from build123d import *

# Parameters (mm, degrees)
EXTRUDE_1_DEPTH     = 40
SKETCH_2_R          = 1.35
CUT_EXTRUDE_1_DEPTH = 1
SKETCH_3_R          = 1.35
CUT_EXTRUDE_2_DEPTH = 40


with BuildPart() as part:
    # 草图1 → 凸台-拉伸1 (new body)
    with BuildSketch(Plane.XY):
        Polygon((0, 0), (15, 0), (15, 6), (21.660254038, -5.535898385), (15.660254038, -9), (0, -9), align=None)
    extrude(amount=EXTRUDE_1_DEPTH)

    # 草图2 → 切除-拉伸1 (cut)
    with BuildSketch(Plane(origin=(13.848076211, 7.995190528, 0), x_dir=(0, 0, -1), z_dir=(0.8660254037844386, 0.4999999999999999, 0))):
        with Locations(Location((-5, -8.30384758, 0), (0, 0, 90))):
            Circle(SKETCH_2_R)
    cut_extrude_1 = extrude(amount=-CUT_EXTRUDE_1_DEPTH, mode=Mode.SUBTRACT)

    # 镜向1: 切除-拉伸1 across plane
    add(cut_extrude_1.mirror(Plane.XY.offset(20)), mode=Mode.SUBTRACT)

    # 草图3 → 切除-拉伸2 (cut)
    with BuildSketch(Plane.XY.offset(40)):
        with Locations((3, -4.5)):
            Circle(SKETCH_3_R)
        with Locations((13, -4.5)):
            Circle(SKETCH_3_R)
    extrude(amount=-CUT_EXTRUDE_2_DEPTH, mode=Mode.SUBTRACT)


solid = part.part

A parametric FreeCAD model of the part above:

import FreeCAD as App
import Part
import Sketcher
from FreeCAD import Vector
Q = App.Units.Quantity


def add_polygon(sketch, points):
    """Adds a closed chain of lines whose ends are joined by coincident constraints."""
    first, n = sketch.GeometryCount, len(points)
    for a, b in zip(points, points[1:] + points[:1]):
        sketch.addGeometry(Part.LineSegment(App.Vector(*a, 0), App.Vector(*b, 0)), False)
    for i in range(n):
        sketch.addConstraint(Sketcher.Constraint("Coincident", first + i, 2, first + (i + 1) % n, 1))

doc = App.newDocument("Part")
body = doc.addObject("PartDesign::Body", "Body")

sketch1 = doc.addObject("Sketcher::SketchObject", "Sketch")
body.addObject(sketch1)
sketch1.AttachmentSupport = (doc.XY_Plane, [""])
sketch1.MapMode = "FlatFace"
add_polygon(sketch1, [(15, 0), (0, 0), (0, -9), (15.660254, -9), (21.660254, -5.535898), (15, 6)])
sketch1.addConstraint([
    Sketcher.Constraint("Horizontal", 0),
    Sketcher.Constraint("Vertical", 1),
    Sketcher.Constraint("Horizontal", 2),
    Sketcher.Constraint("Vertical", 5),
    Sketcher.Constraint("Coincident", 0, 2, -1, 1),
    Sketcher.Constraint("Perpendicular", 3, 4),
    Sketcher.Constraint("DistanceX", 0, 2, 0, 1, 15.0),
    Sketcher.Constraint("DistanceY", 1, 2, 1, 1, 9.0),
    Sketcher.Constraint("DistanceY", 5, 2, 5, 1, 6.0),
    Sketcher.Constraint("Angle", 3, Q("30 deg")),
    Sketcher.Constraint("DistanceX", 2, 2, 3, 2, 6.0),
])
pad1 = doc.addObject("PartDesign::Pad", "Pad")
body.addObject(pad1)
pad1.Profile = sketch1
pad1.Length = 40

sketch2 = doc.addObject("Sketcher::SketchObject", "Sketch001")
body.addObject(sketch2)
sketch2.Placement = App.Placement(Vector(13.848076, 7.995191, 0), App.Rotation(Vector(0, 0, -1), Vector(-0.5, 0.866025404, 0), Vector(0.866025404, 0.5, 0), "ZXY"))
sketch2.addGeometry(Part.Circle(Vector(-5, -8.303848, 0), Vector(0, 0, 1), 1.35), False)
sketch2.addConstraint([
    Sketcher.Constraint("Diameter", 0, 2.7),
    Sketcher.Constraint("DistanceX", 0, 3, -1, 1, 5.0),
    Sketcher.Constraint("DistanceY", 0, 3, -1, 1, 8.303848),
])
pocket1 = doc.addObject("PartDesign::Pocket", "Pocket")
body.addObject(pocket1)
pocket1.Profile = sketch2
pocket1.Length = 1
doc.recompute()

datumplane = doc.addObject("PartDesign::Plane", "DatumPlane")
body.addObject(datumplane)
datumplane.AttachmentSupport = (doc.XY_Plane, [""])
datumplane.MapMode = "FlatFace"
datumplane.AttachmentOffset = App.Placement(Vector(0, 0, 20), App.Rotation())
mirrored = doc.addObject("PartDesign::Mirrored", "Mirrored")
body.addObject(mirrored)
mirrored.Originals = [pocket1]
mirrored.MirrorPlane = (datumplane, [""])
body.Tip = mirrored

sketch3 = doc.addObject("Sketcher::SketchObject", "Sketch002")
body.addObject(sketch3)
sketch3.AttachmentSupport = (doc.XY_Plane, [""])
sketch3.MapMode = "FlatFace"
sketch3.AttachmentOffset = App.Placement(Vector(0, 0, 40), App.Rotation())
sketch3.addGeometry([
    Part.Circle(Vector(3, -4.5, 0), Vector(0, 0, 1), 1.35),
    Part.Circle(Vector(13, -4.5, 0), Vector(0, 0, 1), 1.35),
], False)
sketch3.addConstraint([
    Sketcher.Constraint("Equal", 0, 1),
    Sketcher.Constraint("Horizontal", 0, 3, 1, 3),
    Sketcher.Constraint("Diameter", 0, 2.7),
    Sketcher.Constraint("DistanceX", -1, 1, 0, 3, 3.0),
    Sketcher.Constraint("DistanceX", -1, 1, 1, 3, 13.0),
    Sketcher.Constraint("DistanceY", 0, 3, -1, 1, 4.5),
])
pocket2 = doc.addObject("PartDesign::Pocket", "Pocket001")
body.addObject(pocket2)
pocket2.Profile = sketch3
pocket2.Length = 40

doc.recompute()
